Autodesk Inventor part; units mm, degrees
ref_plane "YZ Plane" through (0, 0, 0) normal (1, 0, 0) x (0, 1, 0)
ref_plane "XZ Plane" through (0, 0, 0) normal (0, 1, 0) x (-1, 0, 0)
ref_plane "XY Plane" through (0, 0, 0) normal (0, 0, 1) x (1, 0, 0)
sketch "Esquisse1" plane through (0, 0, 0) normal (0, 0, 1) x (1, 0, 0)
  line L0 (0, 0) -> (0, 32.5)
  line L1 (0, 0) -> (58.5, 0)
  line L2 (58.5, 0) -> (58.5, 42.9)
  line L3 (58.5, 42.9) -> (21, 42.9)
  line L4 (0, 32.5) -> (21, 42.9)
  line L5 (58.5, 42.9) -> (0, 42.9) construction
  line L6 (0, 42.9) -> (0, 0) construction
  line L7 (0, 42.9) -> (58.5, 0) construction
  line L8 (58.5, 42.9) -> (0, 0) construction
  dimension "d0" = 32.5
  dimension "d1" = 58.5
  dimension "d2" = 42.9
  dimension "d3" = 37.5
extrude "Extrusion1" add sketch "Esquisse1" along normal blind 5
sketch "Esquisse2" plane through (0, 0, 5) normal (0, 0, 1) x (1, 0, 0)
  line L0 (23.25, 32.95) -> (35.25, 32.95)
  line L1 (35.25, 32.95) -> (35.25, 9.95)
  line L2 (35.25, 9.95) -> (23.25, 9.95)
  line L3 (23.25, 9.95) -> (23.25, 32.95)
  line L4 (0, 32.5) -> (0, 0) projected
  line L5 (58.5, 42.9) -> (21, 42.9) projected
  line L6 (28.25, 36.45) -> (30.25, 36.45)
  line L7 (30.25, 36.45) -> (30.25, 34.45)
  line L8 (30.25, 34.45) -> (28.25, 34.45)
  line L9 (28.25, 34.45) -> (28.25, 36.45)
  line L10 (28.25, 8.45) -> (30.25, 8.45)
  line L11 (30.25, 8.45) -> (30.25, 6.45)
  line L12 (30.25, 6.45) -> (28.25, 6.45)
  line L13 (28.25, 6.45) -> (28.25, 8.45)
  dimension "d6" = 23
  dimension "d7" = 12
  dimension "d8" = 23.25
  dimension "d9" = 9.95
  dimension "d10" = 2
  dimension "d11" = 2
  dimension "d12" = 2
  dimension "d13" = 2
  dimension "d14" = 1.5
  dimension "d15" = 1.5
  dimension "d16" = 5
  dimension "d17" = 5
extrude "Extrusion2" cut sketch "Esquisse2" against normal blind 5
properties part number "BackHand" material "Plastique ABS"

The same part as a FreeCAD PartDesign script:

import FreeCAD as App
import Part
import Sketcher
from FreeCAD import Vector
Q = App.Units.Quantity


def add_polygon(sketch, points):
    """Adds a closed chain of lines whose ends are joined by coincident constraints."""
    first, n = sketch.GeometryCount, len(points)
    for a, b in zip(points, points[1:] + points[:1]):
        sketch.addGeometry(Part.LineSegment(App.Vector(*a, 0), App.Vector(*b, 0)), False)
    for i in range(n):
        sketch.addConstraint(Sketcher.Constraint("Coincident", first + i, 2, first + (i + 1) % n, 1))

doc = App.newDocument("Part")
params = doc.addObject("Spreadsheet::Sheet", "Params")
for row, (alias, value) in enumerate([
    ("sketch1_width", "58.5 mm"),
    ("sketch1_width2", "37.5 mm"),
    ("sketch1_height", "32.5 mm"),
    ("sketch1_height2", "42.9 mm"),
    ("pad1_length", "5 mm"),
    ("sketch2_width", "12 mm"),
    ("sketch2_width2", "2 mm"),
    ("sketch2_height", "23 mm"),
    ("pocket1_length", "5 mm"),
], start=1):
    params.set(f"A{row}", alias)
    params.set(f"B{row}", "=" + value)
    params.setAlias(f"B{row}", alias)

body = doc.addObject("PartDesign::Body", "Body")

# Sketch on XY plane
sketch1 = body.newObject("Sketcher::SketchObject", "Sketch")
sketch1.AttachmentSupport = (doc.getObject("XY_Plane"), [""])
sketch1.MapMode = "FlatFace"
add_polygon(sketch1, [(0, 32.5), (0, 0), (58.5, 0), (58.5, 42.9), (21, 42.9)])  # lines 0-4
sketch1.addConstraint(Sketcher.Constraint("Vertical", 0))
sketch1.addConstraint(Sketcher.Constraint("Horizontal", 1))
sketch1.addConstraint(Sketcher.Constraint("Vertical", 2))
sketch1.addConstraint(Sketcher.Constraint("Horizontal", 3))
sketch1.addConstraint(Sketcher.Constraint("Coincident", 0, 2, -1, 1))
sketch1.addConstraint(Sketcher.Constraint("DistanceX", 1, 1, 1, 2, Q("58.5 mm")))
sketch1.addConstraint(Sketcher.Constraint("DistanceX", 3, 2, 3, 1, Q("37.5 mm")))
sketch1.addConstraint(Sketcher.Constraint("DistanceY", 0, 2, 0, 1, Q("32.5 mm")))
sketch1.addConstraint(Sketcher.Constraint("DistanceY", 2, 1, 2, 2, Q("42.9 mm")))
sketch1.setExpression("Constraints[10]", "Params.sketch1_width")
sketch1.setExpression("Constraints[11]", "Params.sketch1_width2")
sketch1.setExpression("Constraints[12]", "Params.sketch1_height")
sketch1.setExpression("Constraints[13]", "Params.sketch1_height2")
pad1 = body.newObject("PartDesign::Pad", "Pad")
pad1.Profile = sketch1
pad1.setExpression("Length", "Params.pad1_length")

# Sketch on XY plane
sketch2 = body.newObject("Sketcher::SketchObject", "Sketch001")
sketch2.AttachmentSupport = (doc.getObject("XY_Plane"), [""])
sketch2.MapMode = "FlatFace"
sketch2.AttachmentOffset = App.Placement(Vector(0, 0, 5), App.Rotation())
add_polygon(sketch2, [(35.25, 32.95), (23.25, 32.95), (23.25, 9.95), (35.25, 9.95)])  # lines 0-3
add_polygon(sketch2, [(30.25, 36.45), (28.25, 36.45), (28.25, 34.45), (30.25, 34.45)])  # lines 4-7
add_polygon(sketch2, [(30.25, 8.45), (28.25, 8.45), (28.25, 6.45), (30.25, 6.45)])  # lines 8-11
sketch2.addConstraint(Sketcher.Constraint("Horizontal", 0))
sketch2.addConstraint(Sketcher.Constraint("Vertical", 1))
sketch2.addConstraint(Sketcher.Constraint("Horizontal", 2))
sketch2.addConstraint(Sketcher.Constraint("Vertical", 3))
sketch2.addConstraint(Sketcher.Constraint("Horizontal", 4))
sketch2.addConstraint(Sketcher.Constraint("Vertical", 5))
sketch2.addConstraint(Sketcher.Constraint("Horizontal", 6))
sketch2.addConstraint(Sketcher.Constraint("Vertical", 7))
sketch2.addConstraint(Sketcher.Constraint("Horizontal", 8))
sketch2.addConstraint(Sketcher.Constraint("Vertical", 9))
sketch2.addConstraint(Sketcher.Constraint("Horizontal", 10))
sketch2.addConstraint(Sketcher.Constraint("Vertical", 11))
sketch2.addConstraint(Sketcher.Constraint("Vertical", 5, 2, 8, 2))
sketch2.addConstraint(Sketcher.Constraint("Vertical", 7, 2, 10, 2))
sketch2.addConstraint(Sketcher.Constraint("Equal", 10, 5))
sketch2.addConstraint(Sketcher.Constraint("Equal", 7, 9))
sketch2.addConstraint(Sketcher.Constraint("DistanceX", 0, 2, 0, 1, Q("12 mm")))
sketch2.addConstraint(Sketcher.Constraint("DistanceX", 4, 2, 4, 1, Q("2 mm")))
sketch2.addConstraint(Sketcher.Constraint("DistanceY", 1, 2, 1, 1, Q("23 mm")))
sketch2.addConstraint(Sketcher.Constraint("DistanceX", 0, 2, 4, 2, Q("5 mm")))
sketch2.addConstraint(Sketcher.Constraint("DistanceY", 0, 2, 5, 2, Q("1.5 mm")))
sketch2.addConstraint(Sketcher.Constraint("DistanceY", 8, 2, 1, 2, Q("1.5 mm")))
sketch2.addConstraint(Sketcher.Constraint("DistanceX", -1, 1, 0, 2, Q("23.25 mm")))
sketch2.addConstraint(Sketcher.Constraint("DistanceY", -1, 1, 1, 2, Q("9.95 mm")))
sketch2.setExpression("Constraints[28]", "Params.sketch2_width")
sketch2.setExpression("Constraints[29]", "Params.sketch2_width2")
sketch2.setExpression("Constraints[30]", "Params.sketch2_height")
pocket1 = body.newObject("PartDesign::Pocket", "Pocket")
pocket1.Profile = sketch2
pocket1.setExpression("Length", "Params.pocket1_length")

doc.recompute()
